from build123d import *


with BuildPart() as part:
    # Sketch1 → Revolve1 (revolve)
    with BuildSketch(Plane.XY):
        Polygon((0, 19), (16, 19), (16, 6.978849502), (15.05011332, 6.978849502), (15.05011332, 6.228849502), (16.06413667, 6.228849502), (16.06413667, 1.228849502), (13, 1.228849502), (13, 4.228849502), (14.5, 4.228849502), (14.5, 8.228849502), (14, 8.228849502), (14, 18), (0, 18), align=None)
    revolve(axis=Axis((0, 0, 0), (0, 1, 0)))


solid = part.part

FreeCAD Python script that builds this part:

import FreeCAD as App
import Part
import Sketcher

V = App.Vector
Q = App.Units.Quantity


def add_polygon(sketch, points):
    """Adds a closed chain of lines whose ends are joined by coincident constraints."""
    first, n = sketch.GeometryCount, len(points)
    for a, b in zip(points, points[1:] + points[:1]):
        sketch.addGeometry(Part.LineSegment(App.Vector(*a, 0), App.Vector(*b, 0)), False)
    for i in range(n):
        sketch.addConstraint(Sketcher.Constraint("Coincident", first + i, 2, first + (i + 1) % n, 1))

doc = App.newDocument("Part")
body = doc.addObject("PartDesign::Body", "Body")

sketch1 = doc.addObject("Sketcher::SketchObject", "Sketch")
body.addObject(sketch1)
sketch1.AttachmentSupport = (doc.XY_Plane, [""])
sketch1.MapMode = "FlatFace"
add_polygon(sketch1, [(16, 19), (0, 19), (0, 18), (14, 18), (14, 8.2), (14.5, 8.2), (14.5, 4.2), (13, 4.2), (13, 1.2), (16.1, 1.2), (16.1, 6.2), (15.1, 6.2), (15.1, 7), (16, 7)])
sketch1.addConstraint(Sketcher.Constraint("Horizontal", 0))
sketch1.addConstraint(Sketcher.Constraint("Vertical", 1))
sketch1.addConstraint(Sketcher.Constraint("Horizontal", 2))
sketch1.addConstraint(Sketcher.Constraint("Vertical", 3))
sketch1.addConstraint(Sketcher.Constraint("Horizontal", 4))
sketch1.addConstraint(Sketcher.Constraint("Vertical", 5))
sketch1.addConstraint(Sketcher.Constraint("Horizontal", 6))
sketch1.addConstraint(Sketcher.Constraint("Vertical", 7))
sketch1.addConstraint(Sketcher.Constraint("Horizontal", 8))
sketch1.addConstraint(Sketcher.Constraint("Vertical", 9))
sketch1.addConstraint(Sketcher.Constraint("Horizontal", 10))
sketch1.addConstraint(Sketcher.Constraint("Vertical", 11))
sketch1.addConstraint(Sketcher.Constraint("Horizontal", 12))
sketch1.addConstraint(Sketcher.Constraint("Vertical", 13))
sketch1.addConstraint(Sketcher.Constraint("PointOnObject", 0, 2, -2))
sketch1.addConstraint(Sketcher.Constraint("DistanceX", 0, 2, 0, 1, Q("16 mm")))
sketch1.addConstraint(Sketcher.Constraint("DistanceX", 2, 1, 2, 2, Q("14 mm")))
sketch1.addConstraint(Sketcher.Constraint("DistanceY", 1, 2, 1, 1, Q("1 mm")))
sketch1.addConstraint(Sketcher.Constraint("DistanceY", 5, 2, 5, 1, Q("4 mm")))
sketch1.addConstraint(Sketcher.Constraint("DistanceY", 7, 2, 7, 1, Q("3 mm")))
sketch1.addConstraint(Sketcher.Constraint("DistanceY", 9, 1, 9, 2, Q("5 mm")))
sketch1.addConstraint(Sketcher.Constraint("DistanceX", 4, 1, 4, 2, Q("0.5 mm")))
sketch1.addConstraint(Sketcher.Constraint("DistanceX", 6, 2, 6, 1, Q("1.5 mm")))
sketch1.addConstraint(Sketcher.Constraint("DistanceY", -1, 1, 0, 2, Q("19 mm")))
sketch1.addConstraint(Sketcher.Constraint("DistanceY", 11, 1, 11, 2, Q("0.75 mm")))
sketch1.addConstraint(Sketcher.Constraint("DistanceY", 3, 2, 3, 1, Q("9.77115 mm")))
sketch1.addConstraint(Sketcher.Constraint("DistanceX", 8, 1, 8, 2, Q("3.064137 mm")))
sketch1.addConstraint(Sketcher.Constraint("DistanceX", 10, 2, 10, 1, Q("1.014023 mm")))
revolution = doc.addObject("PartDesign::Revolution", "Revolution")
body.addObject(revolution)
revolution.Profile = sketch1
revolution.ReferenceAxis = (sketch1, ["V_Axis"])
revolution.Angle = 360

doc.recompute()
